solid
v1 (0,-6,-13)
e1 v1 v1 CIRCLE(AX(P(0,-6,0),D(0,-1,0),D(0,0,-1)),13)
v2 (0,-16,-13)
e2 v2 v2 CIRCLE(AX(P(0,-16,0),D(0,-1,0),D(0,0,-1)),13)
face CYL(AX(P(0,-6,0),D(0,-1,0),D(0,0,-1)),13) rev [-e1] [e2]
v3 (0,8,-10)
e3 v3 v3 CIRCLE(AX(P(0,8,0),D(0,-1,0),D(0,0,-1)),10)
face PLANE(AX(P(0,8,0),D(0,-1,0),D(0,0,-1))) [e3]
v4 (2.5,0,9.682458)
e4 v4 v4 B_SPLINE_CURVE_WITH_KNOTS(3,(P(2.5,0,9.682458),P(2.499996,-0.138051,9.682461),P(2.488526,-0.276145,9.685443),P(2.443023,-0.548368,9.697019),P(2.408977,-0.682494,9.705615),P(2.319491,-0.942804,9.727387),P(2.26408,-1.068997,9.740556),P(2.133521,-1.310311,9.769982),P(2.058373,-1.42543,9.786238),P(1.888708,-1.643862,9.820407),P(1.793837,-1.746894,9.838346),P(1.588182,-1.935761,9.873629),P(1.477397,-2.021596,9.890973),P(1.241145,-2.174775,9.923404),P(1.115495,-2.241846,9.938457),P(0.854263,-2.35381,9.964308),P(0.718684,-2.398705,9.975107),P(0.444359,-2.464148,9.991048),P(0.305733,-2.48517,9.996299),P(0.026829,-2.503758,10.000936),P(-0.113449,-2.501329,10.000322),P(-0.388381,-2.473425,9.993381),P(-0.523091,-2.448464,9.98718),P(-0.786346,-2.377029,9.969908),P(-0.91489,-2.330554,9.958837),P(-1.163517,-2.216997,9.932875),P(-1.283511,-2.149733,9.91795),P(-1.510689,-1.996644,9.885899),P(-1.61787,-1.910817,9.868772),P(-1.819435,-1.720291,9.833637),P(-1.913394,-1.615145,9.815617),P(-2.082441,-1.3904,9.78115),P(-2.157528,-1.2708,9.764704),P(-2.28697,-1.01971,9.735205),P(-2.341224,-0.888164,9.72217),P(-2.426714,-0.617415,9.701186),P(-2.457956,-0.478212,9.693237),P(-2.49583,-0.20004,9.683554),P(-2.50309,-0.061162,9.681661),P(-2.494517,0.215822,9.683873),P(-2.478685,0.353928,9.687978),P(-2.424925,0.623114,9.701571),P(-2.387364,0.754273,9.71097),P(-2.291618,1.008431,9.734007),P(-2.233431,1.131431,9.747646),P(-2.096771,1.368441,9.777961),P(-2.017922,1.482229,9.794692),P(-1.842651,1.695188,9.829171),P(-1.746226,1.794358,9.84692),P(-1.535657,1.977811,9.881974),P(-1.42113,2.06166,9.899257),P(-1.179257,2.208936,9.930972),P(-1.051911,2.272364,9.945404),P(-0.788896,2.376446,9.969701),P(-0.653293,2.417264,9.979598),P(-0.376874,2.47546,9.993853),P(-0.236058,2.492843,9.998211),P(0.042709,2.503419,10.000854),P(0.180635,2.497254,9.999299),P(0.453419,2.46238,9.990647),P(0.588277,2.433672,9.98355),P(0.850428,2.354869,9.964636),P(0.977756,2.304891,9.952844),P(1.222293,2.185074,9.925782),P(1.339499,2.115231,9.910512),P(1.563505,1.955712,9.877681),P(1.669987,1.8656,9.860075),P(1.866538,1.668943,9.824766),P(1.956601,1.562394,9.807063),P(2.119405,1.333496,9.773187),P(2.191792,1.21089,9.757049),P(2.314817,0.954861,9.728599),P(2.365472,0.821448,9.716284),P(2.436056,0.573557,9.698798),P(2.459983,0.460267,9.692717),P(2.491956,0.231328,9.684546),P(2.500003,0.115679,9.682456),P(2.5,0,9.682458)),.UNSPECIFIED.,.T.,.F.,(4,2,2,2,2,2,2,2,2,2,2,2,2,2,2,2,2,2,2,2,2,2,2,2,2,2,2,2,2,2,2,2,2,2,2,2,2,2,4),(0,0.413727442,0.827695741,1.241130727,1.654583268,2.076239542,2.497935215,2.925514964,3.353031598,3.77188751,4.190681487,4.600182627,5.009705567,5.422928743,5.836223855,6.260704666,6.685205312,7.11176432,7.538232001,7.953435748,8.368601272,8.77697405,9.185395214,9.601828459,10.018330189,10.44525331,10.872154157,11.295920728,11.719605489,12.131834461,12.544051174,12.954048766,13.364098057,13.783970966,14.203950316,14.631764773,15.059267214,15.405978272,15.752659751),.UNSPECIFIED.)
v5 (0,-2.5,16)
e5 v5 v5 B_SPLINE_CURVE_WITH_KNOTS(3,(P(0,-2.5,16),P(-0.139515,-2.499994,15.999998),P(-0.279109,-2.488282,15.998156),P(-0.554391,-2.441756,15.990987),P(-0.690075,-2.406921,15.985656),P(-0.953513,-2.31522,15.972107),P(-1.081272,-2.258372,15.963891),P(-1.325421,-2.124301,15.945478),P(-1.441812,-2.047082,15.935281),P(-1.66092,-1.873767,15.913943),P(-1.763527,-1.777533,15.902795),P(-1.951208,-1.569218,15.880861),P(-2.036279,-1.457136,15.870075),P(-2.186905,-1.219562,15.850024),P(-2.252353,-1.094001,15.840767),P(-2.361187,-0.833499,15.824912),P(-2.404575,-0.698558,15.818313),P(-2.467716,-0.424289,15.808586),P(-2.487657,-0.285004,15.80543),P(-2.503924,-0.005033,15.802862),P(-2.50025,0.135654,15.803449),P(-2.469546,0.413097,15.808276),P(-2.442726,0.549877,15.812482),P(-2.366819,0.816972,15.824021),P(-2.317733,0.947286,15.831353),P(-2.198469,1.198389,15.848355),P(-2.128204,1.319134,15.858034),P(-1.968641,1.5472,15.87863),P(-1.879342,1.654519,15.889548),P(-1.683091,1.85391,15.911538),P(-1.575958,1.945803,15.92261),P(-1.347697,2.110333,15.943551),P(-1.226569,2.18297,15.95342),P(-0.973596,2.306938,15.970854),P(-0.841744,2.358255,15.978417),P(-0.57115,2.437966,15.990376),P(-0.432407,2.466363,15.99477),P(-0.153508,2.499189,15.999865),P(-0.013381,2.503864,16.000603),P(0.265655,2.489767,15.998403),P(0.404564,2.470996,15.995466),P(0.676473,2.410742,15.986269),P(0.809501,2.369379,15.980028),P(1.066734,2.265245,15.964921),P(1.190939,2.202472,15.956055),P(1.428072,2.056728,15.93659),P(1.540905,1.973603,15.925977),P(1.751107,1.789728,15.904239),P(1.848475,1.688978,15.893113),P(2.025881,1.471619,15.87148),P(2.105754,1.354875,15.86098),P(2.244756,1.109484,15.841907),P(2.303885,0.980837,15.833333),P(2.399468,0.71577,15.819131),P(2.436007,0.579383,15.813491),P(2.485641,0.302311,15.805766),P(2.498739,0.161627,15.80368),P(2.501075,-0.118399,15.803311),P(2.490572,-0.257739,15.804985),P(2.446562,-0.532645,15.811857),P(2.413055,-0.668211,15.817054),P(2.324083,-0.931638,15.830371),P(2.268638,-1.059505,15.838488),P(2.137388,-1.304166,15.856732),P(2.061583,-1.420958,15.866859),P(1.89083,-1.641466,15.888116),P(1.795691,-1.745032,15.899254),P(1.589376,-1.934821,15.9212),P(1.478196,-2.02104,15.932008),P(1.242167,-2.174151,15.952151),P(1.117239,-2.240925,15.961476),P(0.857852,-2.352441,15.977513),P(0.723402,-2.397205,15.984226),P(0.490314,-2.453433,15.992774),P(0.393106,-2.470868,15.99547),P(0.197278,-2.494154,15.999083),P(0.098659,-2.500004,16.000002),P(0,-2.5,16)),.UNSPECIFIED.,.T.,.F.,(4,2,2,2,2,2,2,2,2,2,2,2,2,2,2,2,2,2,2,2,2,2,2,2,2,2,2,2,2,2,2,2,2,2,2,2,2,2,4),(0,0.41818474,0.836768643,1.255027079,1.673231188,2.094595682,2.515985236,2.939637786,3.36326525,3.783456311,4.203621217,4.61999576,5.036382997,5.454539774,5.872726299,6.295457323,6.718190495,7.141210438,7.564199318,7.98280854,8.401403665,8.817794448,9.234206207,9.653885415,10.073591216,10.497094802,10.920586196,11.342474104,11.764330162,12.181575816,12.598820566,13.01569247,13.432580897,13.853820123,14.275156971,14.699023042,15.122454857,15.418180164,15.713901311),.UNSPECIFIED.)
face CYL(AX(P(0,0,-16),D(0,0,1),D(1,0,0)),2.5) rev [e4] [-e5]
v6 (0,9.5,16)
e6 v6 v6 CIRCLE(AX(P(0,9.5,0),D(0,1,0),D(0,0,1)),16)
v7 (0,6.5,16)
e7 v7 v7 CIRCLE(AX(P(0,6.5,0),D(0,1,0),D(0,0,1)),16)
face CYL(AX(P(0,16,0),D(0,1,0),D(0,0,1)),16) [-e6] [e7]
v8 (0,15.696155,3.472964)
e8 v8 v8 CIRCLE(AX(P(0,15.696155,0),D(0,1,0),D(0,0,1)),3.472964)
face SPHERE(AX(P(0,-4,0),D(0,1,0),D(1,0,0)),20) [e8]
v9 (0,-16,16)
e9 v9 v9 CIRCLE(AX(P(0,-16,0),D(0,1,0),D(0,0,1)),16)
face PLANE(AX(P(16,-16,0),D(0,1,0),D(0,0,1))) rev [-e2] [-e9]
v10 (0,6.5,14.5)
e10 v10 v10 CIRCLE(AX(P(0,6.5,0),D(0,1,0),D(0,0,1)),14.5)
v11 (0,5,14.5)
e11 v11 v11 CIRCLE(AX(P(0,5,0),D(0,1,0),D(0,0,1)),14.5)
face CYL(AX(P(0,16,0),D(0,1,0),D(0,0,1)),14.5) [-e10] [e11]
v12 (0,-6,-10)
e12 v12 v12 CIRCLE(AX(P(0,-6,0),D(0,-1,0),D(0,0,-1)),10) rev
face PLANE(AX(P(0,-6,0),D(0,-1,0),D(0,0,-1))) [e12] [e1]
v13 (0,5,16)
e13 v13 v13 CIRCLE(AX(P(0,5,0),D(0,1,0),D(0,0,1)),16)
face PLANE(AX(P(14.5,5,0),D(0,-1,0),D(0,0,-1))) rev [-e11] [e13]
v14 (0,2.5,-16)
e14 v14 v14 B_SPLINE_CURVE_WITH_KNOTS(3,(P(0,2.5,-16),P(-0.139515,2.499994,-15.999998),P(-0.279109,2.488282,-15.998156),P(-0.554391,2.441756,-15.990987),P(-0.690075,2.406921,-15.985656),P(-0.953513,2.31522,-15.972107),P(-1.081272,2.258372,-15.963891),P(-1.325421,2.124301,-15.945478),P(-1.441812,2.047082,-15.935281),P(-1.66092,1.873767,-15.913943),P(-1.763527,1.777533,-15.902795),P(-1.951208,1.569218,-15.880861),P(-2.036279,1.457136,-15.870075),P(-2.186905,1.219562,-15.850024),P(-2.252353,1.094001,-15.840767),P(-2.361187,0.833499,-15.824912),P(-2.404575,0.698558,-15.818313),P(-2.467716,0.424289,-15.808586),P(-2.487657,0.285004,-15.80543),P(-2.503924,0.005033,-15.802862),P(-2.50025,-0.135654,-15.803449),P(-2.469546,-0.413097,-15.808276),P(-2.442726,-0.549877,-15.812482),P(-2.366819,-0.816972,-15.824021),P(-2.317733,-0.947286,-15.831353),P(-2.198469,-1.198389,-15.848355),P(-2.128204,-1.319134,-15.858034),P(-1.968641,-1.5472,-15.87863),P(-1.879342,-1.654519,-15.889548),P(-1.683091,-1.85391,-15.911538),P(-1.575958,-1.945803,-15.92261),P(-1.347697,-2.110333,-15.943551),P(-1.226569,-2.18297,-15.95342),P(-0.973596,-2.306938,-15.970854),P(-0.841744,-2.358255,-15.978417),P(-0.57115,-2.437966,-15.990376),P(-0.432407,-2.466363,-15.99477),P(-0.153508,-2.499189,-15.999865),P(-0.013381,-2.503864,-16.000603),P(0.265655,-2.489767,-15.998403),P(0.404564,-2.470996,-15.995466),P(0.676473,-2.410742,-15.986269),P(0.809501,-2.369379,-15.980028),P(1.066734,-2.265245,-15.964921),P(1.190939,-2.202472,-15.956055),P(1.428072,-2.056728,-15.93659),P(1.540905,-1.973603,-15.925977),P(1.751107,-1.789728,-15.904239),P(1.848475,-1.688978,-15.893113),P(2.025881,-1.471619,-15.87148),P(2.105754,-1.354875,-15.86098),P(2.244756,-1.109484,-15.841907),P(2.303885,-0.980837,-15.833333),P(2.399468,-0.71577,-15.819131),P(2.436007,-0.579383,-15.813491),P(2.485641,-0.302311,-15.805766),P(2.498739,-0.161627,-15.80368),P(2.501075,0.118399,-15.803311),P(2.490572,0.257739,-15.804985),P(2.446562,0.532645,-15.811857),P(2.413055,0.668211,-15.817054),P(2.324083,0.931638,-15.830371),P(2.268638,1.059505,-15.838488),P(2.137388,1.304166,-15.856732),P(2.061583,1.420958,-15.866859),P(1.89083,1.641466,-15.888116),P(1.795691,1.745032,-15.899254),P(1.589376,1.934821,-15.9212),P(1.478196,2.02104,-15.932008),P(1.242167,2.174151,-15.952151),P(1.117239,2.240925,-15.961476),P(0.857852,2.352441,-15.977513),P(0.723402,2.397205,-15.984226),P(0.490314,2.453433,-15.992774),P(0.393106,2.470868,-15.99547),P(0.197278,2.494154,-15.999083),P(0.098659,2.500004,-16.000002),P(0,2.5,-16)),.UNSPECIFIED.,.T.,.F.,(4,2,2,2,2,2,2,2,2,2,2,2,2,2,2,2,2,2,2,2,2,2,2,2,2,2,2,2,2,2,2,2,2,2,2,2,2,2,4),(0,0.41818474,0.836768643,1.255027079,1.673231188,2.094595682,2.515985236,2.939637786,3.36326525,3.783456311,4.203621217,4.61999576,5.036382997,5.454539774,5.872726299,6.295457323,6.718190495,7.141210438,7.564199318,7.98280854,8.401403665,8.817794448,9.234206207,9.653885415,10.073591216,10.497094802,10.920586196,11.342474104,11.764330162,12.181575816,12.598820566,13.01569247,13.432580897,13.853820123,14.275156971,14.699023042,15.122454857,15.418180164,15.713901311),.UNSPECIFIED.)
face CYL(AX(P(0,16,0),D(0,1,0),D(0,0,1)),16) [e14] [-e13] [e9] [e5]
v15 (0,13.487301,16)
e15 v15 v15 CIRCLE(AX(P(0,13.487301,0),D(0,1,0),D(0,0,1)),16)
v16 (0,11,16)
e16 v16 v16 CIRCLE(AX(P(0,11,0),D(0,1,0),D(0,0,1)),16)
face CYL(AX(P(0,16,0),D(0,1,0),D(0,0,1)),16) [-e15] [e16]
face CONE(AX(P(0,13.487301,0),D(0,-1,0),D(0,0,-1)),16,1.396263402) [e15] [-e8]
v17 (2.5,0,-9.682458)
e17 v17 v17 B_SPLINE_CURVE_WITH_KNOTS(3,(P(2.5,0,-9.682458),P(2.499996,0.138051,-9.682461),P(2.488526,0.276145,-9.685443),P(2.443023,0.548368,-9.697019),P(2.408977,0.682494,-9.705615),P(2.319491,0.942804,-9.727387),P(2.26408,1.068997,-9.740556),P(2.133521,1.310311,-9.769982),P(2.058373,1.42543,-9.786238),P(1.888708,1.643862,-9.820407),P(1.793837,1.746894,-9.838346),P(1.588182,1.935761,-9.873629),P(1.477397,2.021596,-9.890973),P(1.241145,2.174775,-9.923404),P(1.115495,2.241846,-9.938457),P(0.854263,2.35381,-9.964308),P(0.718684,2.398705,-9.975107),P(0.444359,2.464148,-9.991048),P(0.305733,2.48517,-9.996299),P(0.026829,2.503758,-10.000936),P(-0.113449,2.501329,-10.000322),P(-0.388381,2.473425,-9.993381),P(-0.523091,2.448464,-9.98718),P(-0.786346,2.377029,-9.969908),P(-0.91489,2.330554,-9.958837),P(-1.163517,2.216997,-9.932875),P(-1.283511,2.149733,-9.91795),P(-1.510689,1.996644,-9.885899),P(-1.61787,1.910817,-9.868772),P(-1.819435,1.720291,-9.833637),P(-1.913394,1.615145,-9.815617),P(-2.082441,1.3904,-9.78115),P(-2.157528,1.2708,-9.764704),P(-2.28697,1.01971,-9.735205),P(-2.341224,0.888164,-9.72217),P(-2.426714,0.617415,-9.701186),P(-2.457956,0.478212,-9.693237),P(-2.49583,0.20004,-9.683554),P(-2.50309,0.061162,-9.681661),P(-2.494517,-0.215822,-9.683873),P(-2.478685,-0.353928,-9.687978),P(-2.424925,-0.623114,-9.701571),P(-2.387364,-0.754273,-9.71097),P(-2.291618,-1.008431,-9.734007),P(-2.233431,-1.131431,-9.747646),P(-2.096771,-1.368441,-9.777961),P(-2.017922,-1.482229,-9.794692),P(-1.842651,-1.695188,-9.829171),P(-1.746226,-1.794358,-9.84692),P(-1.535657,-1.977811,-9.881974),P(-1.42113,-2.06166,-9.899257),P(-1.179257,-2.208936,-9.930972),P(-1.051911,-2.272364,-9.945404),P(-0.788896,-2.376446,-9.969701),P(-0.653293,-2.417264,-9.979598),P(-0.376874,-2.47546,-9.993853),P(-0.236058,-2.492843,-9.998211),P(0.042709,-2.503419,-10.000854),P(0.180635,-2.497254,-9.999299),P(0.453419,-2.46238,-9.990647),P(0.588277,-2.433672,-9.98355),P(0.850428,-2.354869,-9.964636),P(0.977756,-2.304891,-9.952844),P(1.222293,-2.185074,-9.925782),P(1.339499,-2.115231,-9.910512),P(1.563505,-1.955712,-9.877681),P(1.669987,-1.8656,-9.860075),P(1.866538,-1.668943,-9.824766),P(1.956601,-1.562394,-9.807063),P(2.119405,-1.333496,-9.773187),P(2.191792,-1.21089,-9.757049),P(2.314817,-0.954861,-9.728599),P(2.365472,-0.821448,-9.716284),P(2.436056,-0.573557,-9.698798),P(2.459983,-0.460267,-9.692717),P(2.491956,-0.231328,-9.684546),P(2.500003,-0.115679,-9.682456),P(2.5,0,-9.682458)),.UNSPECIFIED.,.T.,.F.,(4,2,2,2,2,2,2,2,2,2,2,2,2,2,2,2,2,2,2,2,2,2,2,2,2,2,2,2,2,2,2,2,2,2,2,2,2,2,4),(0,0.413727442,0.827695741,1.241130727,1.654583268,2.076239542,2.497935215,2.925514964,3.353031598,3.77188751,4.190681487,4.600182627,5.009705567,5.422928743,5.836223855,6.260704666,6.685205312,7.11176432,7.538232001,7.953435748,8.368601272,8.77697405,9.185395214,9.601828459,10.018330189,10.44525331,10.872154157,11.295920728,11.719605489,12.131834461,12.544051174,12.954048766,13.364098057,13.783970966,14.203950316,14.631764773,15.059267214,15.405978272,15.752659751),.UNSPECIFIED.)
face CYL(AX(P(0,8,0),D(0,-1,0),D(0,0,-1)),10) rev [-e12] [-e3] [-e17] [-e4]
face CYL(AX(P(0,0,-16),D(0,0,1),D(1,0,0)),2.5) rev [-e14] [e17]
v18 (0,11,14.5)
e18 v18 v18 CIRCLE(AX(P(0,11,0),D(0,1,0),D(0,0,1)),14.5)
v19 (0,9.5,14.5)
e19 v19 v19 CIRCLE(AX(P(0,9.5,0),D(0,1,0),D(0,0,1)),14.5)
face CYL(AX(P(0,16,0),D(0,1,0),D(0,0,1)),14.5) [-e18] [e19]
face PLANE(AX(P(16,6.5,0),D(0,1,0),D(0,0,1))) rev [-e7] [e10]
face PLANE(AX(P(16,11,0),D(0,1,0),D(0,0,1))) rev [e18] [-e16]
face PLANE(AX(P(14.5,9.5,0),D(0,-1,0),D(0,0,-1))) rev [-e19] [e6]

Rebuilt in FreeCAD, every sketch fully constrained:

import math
import FreeCAD as App
import Part
import Sketcher

V = App.Vector
Q = App.Units.Quantity

doc = App.newDocument("Part")
params = doc.addObject("Spreadsheet::Sheet", "Params")
for row, (alias, value) in enumerate([
    ("sketch1_radius", "20 mm"),
    ("sketch1_width", "16 mm"),
    ("sketch1_height", "32 mm"),
    ("sketch1_height2", "21 mm"),
    ("sketch1_height3", "3 mm"),
    ("revolution_angle", "360 deg"),
    ("sketch2_diameter", "5 mm"),
    ("sketch3_diameter", "20 mm"),
    ("pocket2_length", "24 mm"),
    ("sketch4_diameter", "26 mm"),
    ("pocket3_length", "10 mm"),
], start=1):
    params.set(f"A{row}", alias)
    params.set(f"B{row}", "=" + value)
    params.setAlias(f"B{row}", alias)

body = doc.addObject("PartDesign::Body", "Body")

# Sketch on XY plane
sketch1 = doc.addObject("Sketcher::SketchObject", "Sketch")
body.addObject(sketch1)
sketch1.AttachmentSupport = (doc.XY_Plane, [""])
sketch1.MapMode = "FlatFace"
sketch1.addGeometry(Part.LineSegment(V(0, 16, 0), V(0, -16, 0)), False)
sketch1.addGeometry(Part.LineSegment(V(0, -16, 0), V(16, -16, 0)), False)
sketch1.addGeometry(Part.LineSegment(V(16, -16, 0), V(16, 5, 0)), False)
sketch1.addGeometry(Part.LineSegment(V(16, 5, 0), V(14.5, 5, 0)), False)
sketch1.addGeometry(Part.LineSegment(V(14.5, 5, 0), V(14.5, 6.5, 0)), False)
sketch1.addGeometry(Part.LineSegment(V(14.5, 6.5, 0), V(16, 6.5, 0)), False)
sketch1.addGeometry(Part.LineSegment(V(16, 6.5, 0), V(16, 9.5, 0)), False)
sketch1.addGeometry(Part.LineSegment(V(16, 9.5, 0), V(14.5, 9.5, 0)), False)
sketch1.addGeometry(Part.LineSegment(V(14.5, 9.5, 0), V(14.5, 11, 0)), False)
sketch1.addGeometry(Part.LineSegment(V(14.5, 11, 0), V(16, 11, 0)), False)
sketch1.addGeometry(Part.LineSegment(V(16, 11, 0), V(16, 13.5, 0)), False)
sketch1.addGeometry(Part.LineSegment(V(16, 13.5, 0), V(3.5, 15.7, 0)), False)
sketch1.addGeometry(Part.ArcOfCircle(Part.Circle(V(0, -4, 0), V(0, 0, 1), 20), math.radians(80), math.radians(90)), False)
sketch1.addConstraint(Sketcher.Constraint("Coincident", 0, 2, 1, 1))
sketch1.addConstraint(Sketcher.Constraint("Coincident", 1, 2, 2, 1))
sketch1.addConstraint(Sketcher.Constraint("Coincident", 2, 2, 3, 1))
sketch1.addConstraint(Sketcher.Constraint("Coincident", 3, 2, 4, 1))
sketch1.addConstraint(Sketcher.Constraint("Coincident", 4, 2, 5, 1))
sketch1.addConstraint(Sketcher.Constraint("Coincident", 5, 2, 6, 1))
sketch1.addConstraint(Sketcher.Constraint("Coincident", 6, 2, 7, 1))
sketch1.addConstraint(Sketcher.Constraint("Coincident", 7, 2, 8, 1))
sketch1.addConstraint(Sketcher.Constraint("Coincident", 8, 2, 9, 1))
sketch1.addConstraint(Sketcher.Constraint("Coincident", 9, 2, 10, 1))
sketch1.addConstraint(Sketcher.Constraint("Coincident", 10, 2, 11, 1))
sketch1.addConstraint(Sketcher.Constraint("Tangent", 11, 2, 12, 1))
sketch1.addConstraint(Sketcher.Constraint("Coincident", 12, 2, 0, 1))
sketch1.addConstraint(Sketcher.Constraint("Vertical", 0))
sketch1.addConstraint(Sketcher.Constraint("Horizontal", 1))
sketch1.addConstraint(Sketcher.Constraint("Vertical", 2))
sketch1.addConstraint(Sketcher.Constraint("Horizontal", 3))
sketch1.addConstraint(Sketcher.Constraint("Vertical", 4))
sketch1.addConstraint(Sketcher.Constraint("Horizontal", 5))
sketch1.addConstraint(Sketcher.Constraint("Vertical", 6))
sketch1.addConstraint(Sketcher.Constraint("Horizontal", 7))
sketch1.addConstraint(Sketcher.Constraint("Vertical", 8))
sketch1.addConstraint(Sketcher.Constraint("Horizontal", 9))
sketch1.addConstraint(Sketcher.Constraint("Vertical", 10))
sketch1.addConstraint(Sketcher.Constraint("Symmetric", 0, 2, 12, 2, -1, 1))
sketch1.addConstraint(Sketcher.Constraint("PointOnObject", 12, 3, -2))
sketch1.addConstraint(Sketcher.Constraint("Vertical", 2, 2, 5, 2))
sketch1.addConstraint(Sketcher.Constraint("Vertical", 4, 2, 7, 2))
sketch1.addConstraint(Sketcher.Constraint("Vertical", 6, 2, 9, 2))
sketch1.addConstraint(Sketcher.Constraint("Equal", 9, 4))
sketch1.addConstraint(Sketcher.Constraint("Equal", 4, 8))
sketch1.addConstraint(Sketcher.Constraint("Radius", 12, 20.0))
sketch1.addConstraint(Sketcher.Constraint("DistanceX", 1, 1, 1, 2, 16.0))
sketch1.addConstraint(Sketcher.Constraint("DistanceY", 0, 2, 0, 1, 32.0))
sketch1.addConstraint(Sketcher.Constraint("DistanceY", 2, 1, 2, 2, 21.0))
sketch1.addConstraint(Sketcher.Constraint("DistanceY", 6, 1, 6, 2, 3.0))
sketch1.addConstraint(Sketcher.Constraint("Angle", 11, Q("170 deg")))
sketch1.addConstraint(Sketcher.Constraint("DistanceX", 3, 2, 3, 1, 1.5))
sketch1.setExpression("Constraints[31]", "Params.sketch1_radius")
sketch1.setExpression("Constraints[32]", "Params.sketch1_width")
sketch1.setExpression("Constraints[33]", "Params.sketch1_height")
sketch1.setExpression("Constraints[34]", "Params.sketch1_height2")
sketch1.setExpression("Constraints[35]", "Params.sketch1_height3")
revolution = doc.addObject("PartDesign::Revolution", "Revolution")
body.addObject(revolution)
revolution.Profile = sketch1
revolution.ReferenceAxis = (sketch1, ["V_Axis"])
revolution.setExpression("Angle", "Params.revolution_angle")

# Sketch on XY plane
sketch2 = doc.addObject("Sketcher::SketchObject", "Sketch001")
body.addObject(sketch2)
sketch2.AttachmentSupport = (doc.XY_Plane, [""])
sketch2.MapMode = "FlatFace"
sketch2.addGeometry(Part.Circle(V(0, 0, 0), V(0, 0, 1), 2.5), False)
sketch2.addConstraint(Sketcher.Constraint("Coincident", 0, 3, -1, 1))
sketch2.addConstraint(Sketcher.Constraint("Diameter", 0, 5.0))
sketch2.setExpression("Constraints[1]", "Params.sketch2_diameter")
pocket1 = doc.addObject("PartDesign::Pocket", "Pocket")
body.addObject(pocket1)
pocket1.Profile = sketch2
pocket1.Type = "ThroughAll"
pocket1.Midplane = True

# Sketch on XZ plane
sketch3 = doc.addObject("Sketcher::SketchObject", "Sketch002")
body.addObject(sketch3)
sketch3.AttachmentSupport = (doc.XZ_Plane, [""])
sketch3.MapMode = "FlatFace"
sketch3.AttachmentOffset = App.Placement(V(0, 0, 16), App.Rotation())
sketch3.addGeometry(Part.Circle(V(0, 0, 0), V(0, 0, 1), 10), False)
sketch3.addConstraint(Sketcher.Constraint("Coincident", 0, 3, -1, 1))
sketch3.addConstraint(Sketcher.Constraint("Diameter", 0, 20.0))
sketch3.setExpression("Constraints[1]", "Params.sketch3_diameter")
pocket2 = doc.addObject("PartDesign::Pocket", "Pocket001")
body.addObject(pocket2)
pocket2.Profile = sketch3
pocket2.setExpression("Length", "Params.pocket2_length")

# Sketch on XZ plane
sketch4 = doc.addObject("Sketcher::SketchObject", "Sketch003")
body.addObject(sketch4)
sketch4.AttachmentSupport = (doc.XZ_Plane, [""])
sketch4.MapMode = "FlatFace"
sketch4.AttachmentOffset = App.Placement(V(0, 0, 16), App.Rotation())
sketch4.addGeometry(Part.Circle(V(0, 0, 0), V(0, 0, 1), 13), False)
sketch4.addConstraint(Sketcher.Constraint("Coincident", 0, 3, -1, 1))
sketch4.addConstraint(Sketcher.Constraint("Diameter", 0, 26.0))
sketch4.setExpression("Constraints[1]", "Params.sketch4_diameter")
pocket3 = doc.addObject("PartDesign::Pocket", "Pocket002")
body.addObject(pocket3)
pocket3.Profile = sketch4
pocket3.setExpression("Length", "Params.pocket3_length")

doc.recompute()
